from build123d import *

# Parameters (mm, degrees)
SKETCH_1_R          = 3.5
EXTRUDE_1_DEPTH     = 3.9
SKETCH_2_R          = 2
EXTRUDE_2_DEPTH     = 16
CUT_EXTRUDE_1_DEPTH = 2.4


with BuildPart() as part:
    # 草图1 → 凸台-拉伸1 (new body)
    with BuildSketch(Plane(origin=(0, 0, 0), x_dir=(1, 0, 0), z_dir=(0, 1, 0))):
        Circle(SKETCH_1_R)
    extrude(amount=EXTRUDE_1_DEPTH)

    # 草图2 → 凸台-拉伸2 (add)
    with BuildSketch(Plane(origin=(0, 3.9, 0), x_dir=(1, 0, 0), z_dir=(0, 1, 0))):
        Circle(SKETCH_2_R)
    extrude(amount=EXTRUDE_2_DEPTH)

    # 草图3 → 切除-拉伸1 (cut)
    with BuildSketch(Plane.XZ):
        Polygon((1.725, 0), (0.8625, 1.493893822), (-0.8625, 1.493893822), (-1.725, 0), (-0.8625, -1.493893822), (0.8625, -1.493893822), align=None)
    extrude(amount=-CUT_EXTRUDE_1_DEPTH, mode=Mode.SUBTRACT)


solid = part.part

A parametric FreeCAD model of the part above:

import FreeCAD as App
import Part
import Sketcher
from FreeCAD import Vector
Q = App.Units.Quantity

doc = App.newDocument("Part")
body = doc.addObject("PartDesign::Body", "Body")

# Sketch on XZ plane
sketch1 = doc.addObject("Sketcher::SketchObject", "Sketch")
body.addObject(sketch1)
sketch1.AttachmentSupport = (doc.XZ_Plane, [""])
sketch1.MapMode = "FlatFace"
sketch1.addGeometry(Part.Circle(Vector(0, 0, 0), Vector(0, 0, 1), 3.5), False)
sketch1.addConstraint(Sketcher.Constraint("Coincident", 0, 3, -1, 1))
sketch1.addConstraint(Sketcher.Constraint("Diameter", 0, 7.0))
pad1 = doc.addObject("PartDesign::Pad", "Pad")
body.addObject(pad1)
pad1.Profile = sketch1
pad1.Length = 3.9
pad1.Reversed = True

# Sketch on XZ plane
sketch2 = doc.addObject("Sketcher::SketchObject", "Sketch001")
body.addObject(sketch2)
sketch2.AttachmentSupport = (doc.XZ_Plane, [""])
sketch2.MapMode = "FlatFace"
sketch2.AttachmentOffset = App.Placement(Vector(0, 0, -3.9), App.Rotation())
sketch2.addGeometry(Part.Circle(Vector(0, 0, 0), Vector(0, 0, 1), 2), False)
sketch2.addConstraint(Sketcher.Constraint("Coincident", 0, 3, -1, 1))
sketch2.addConstraint(Sketcher.Constraint("Diameter", 0, 4.0))
pad2 = doc.addObject("PartDesign::Pad", "Pad001")
body.addObject(pad2)
pad2.Profile = sketch2
pad2.Length = 16
pad2.Reversed = True

# Sketch on XZ plane
sketch3 = doc.addObject("Sketcher::SketchObject", "Sketch002")
body.addObject(sketch3)
sketch3.AttachmentSupport = (doc.XZ_Plane, [""])
sketch3.MapMode = "FlatFace"
sketch3.addGeometry(Part.LineSegment(Vector(1.7, 0, 0), Vector(0.9, 1.5, 0)), False)
sketch3.addGeometry(Part.LineSegment(Vector(0.9, 1.5, 0), Vector(-0.9, 1.5, 0)), False)
sketch3.addGeometry(Part.LineSegment(Vector(-0.9, 1.5, 0), Vector(-1.7, 0, 0)), False)
sketch3.addGeometry(Part.LineSegment(Vector(-1.7, 0, 0), Vector(-0.9, -1.5, 0)), False)
sketch3.addGeometry(Part.LineSegment(Vector(-0.9, -1.5, 0), Vector(0.9, -1.5, 0)), False)
sketch3.addGeometry(Part.LineSegment(Vector(0.9, -1.5, 0), Vector(1.7, 0, 0)), False)
sketch3.addConstraint(Sketcher.Constraint("Coincident", 0, 2, 1, 1))
sketch3.addConstraint(Sketcher.Constraint("Coincident", 1, 2, 2, 1))
sketch3.addConstraint(Sketcher.Constraint("Coincident", 2, 2, 3, 1))
sketch3.addConstraint(Sketcher.Constraint("Coincident", 3, 2, 4, 1))
sketch3.addConstraint(Sketcher.Constraint("Coincident", 4, 2, 5, 1))
sketch3.addConstraint(Sketcher.Constraint("Coincident", 5, 2, 0, 1))
sketch3.addConstraint(Sketcher.Constraint("Horizontal", 1))
sketch3.addConstraint(Sketcher.Constraint("Horizontal", 4))
sketch3.addConstraint(Sketcher.Constraint("Symmetric", 0, 2, 3, 2, -1, 1))
sketch3.addConstraint(Sketcher.Constraint("Symmetric", 2, 2, 5, 2, -1, 1))
sketch3.addConstraint(Sketcher.Constraint("PointOnObject", 2, 2, -1))
sketch3.addConstraint(Sketcher.Constraint("Parallel", 2, 5))
sketch3.addConstraint(Sketcher.Constraint("Vertical", 1, 2, 3, 2))
sketch3.addConstraint(Sketcher.Constraint("Angle", 0, Q("120 deg")))
sketch3.addConstraint(Sketcher.Constraint("DistanceX", 1, 2, 1, 1, 1.725))
sketch3.addConstraint(Sketcher.Constraint("DistanceX", 2, 2, 5, 2, 3.45))
pocket1 = doc.addObject("PartDesign::Pocket", "Pocket")
body.addObject(pocket1)
pocket1.Profile = sketch3
pocket1.Length = 2.4

doc.recompute()
